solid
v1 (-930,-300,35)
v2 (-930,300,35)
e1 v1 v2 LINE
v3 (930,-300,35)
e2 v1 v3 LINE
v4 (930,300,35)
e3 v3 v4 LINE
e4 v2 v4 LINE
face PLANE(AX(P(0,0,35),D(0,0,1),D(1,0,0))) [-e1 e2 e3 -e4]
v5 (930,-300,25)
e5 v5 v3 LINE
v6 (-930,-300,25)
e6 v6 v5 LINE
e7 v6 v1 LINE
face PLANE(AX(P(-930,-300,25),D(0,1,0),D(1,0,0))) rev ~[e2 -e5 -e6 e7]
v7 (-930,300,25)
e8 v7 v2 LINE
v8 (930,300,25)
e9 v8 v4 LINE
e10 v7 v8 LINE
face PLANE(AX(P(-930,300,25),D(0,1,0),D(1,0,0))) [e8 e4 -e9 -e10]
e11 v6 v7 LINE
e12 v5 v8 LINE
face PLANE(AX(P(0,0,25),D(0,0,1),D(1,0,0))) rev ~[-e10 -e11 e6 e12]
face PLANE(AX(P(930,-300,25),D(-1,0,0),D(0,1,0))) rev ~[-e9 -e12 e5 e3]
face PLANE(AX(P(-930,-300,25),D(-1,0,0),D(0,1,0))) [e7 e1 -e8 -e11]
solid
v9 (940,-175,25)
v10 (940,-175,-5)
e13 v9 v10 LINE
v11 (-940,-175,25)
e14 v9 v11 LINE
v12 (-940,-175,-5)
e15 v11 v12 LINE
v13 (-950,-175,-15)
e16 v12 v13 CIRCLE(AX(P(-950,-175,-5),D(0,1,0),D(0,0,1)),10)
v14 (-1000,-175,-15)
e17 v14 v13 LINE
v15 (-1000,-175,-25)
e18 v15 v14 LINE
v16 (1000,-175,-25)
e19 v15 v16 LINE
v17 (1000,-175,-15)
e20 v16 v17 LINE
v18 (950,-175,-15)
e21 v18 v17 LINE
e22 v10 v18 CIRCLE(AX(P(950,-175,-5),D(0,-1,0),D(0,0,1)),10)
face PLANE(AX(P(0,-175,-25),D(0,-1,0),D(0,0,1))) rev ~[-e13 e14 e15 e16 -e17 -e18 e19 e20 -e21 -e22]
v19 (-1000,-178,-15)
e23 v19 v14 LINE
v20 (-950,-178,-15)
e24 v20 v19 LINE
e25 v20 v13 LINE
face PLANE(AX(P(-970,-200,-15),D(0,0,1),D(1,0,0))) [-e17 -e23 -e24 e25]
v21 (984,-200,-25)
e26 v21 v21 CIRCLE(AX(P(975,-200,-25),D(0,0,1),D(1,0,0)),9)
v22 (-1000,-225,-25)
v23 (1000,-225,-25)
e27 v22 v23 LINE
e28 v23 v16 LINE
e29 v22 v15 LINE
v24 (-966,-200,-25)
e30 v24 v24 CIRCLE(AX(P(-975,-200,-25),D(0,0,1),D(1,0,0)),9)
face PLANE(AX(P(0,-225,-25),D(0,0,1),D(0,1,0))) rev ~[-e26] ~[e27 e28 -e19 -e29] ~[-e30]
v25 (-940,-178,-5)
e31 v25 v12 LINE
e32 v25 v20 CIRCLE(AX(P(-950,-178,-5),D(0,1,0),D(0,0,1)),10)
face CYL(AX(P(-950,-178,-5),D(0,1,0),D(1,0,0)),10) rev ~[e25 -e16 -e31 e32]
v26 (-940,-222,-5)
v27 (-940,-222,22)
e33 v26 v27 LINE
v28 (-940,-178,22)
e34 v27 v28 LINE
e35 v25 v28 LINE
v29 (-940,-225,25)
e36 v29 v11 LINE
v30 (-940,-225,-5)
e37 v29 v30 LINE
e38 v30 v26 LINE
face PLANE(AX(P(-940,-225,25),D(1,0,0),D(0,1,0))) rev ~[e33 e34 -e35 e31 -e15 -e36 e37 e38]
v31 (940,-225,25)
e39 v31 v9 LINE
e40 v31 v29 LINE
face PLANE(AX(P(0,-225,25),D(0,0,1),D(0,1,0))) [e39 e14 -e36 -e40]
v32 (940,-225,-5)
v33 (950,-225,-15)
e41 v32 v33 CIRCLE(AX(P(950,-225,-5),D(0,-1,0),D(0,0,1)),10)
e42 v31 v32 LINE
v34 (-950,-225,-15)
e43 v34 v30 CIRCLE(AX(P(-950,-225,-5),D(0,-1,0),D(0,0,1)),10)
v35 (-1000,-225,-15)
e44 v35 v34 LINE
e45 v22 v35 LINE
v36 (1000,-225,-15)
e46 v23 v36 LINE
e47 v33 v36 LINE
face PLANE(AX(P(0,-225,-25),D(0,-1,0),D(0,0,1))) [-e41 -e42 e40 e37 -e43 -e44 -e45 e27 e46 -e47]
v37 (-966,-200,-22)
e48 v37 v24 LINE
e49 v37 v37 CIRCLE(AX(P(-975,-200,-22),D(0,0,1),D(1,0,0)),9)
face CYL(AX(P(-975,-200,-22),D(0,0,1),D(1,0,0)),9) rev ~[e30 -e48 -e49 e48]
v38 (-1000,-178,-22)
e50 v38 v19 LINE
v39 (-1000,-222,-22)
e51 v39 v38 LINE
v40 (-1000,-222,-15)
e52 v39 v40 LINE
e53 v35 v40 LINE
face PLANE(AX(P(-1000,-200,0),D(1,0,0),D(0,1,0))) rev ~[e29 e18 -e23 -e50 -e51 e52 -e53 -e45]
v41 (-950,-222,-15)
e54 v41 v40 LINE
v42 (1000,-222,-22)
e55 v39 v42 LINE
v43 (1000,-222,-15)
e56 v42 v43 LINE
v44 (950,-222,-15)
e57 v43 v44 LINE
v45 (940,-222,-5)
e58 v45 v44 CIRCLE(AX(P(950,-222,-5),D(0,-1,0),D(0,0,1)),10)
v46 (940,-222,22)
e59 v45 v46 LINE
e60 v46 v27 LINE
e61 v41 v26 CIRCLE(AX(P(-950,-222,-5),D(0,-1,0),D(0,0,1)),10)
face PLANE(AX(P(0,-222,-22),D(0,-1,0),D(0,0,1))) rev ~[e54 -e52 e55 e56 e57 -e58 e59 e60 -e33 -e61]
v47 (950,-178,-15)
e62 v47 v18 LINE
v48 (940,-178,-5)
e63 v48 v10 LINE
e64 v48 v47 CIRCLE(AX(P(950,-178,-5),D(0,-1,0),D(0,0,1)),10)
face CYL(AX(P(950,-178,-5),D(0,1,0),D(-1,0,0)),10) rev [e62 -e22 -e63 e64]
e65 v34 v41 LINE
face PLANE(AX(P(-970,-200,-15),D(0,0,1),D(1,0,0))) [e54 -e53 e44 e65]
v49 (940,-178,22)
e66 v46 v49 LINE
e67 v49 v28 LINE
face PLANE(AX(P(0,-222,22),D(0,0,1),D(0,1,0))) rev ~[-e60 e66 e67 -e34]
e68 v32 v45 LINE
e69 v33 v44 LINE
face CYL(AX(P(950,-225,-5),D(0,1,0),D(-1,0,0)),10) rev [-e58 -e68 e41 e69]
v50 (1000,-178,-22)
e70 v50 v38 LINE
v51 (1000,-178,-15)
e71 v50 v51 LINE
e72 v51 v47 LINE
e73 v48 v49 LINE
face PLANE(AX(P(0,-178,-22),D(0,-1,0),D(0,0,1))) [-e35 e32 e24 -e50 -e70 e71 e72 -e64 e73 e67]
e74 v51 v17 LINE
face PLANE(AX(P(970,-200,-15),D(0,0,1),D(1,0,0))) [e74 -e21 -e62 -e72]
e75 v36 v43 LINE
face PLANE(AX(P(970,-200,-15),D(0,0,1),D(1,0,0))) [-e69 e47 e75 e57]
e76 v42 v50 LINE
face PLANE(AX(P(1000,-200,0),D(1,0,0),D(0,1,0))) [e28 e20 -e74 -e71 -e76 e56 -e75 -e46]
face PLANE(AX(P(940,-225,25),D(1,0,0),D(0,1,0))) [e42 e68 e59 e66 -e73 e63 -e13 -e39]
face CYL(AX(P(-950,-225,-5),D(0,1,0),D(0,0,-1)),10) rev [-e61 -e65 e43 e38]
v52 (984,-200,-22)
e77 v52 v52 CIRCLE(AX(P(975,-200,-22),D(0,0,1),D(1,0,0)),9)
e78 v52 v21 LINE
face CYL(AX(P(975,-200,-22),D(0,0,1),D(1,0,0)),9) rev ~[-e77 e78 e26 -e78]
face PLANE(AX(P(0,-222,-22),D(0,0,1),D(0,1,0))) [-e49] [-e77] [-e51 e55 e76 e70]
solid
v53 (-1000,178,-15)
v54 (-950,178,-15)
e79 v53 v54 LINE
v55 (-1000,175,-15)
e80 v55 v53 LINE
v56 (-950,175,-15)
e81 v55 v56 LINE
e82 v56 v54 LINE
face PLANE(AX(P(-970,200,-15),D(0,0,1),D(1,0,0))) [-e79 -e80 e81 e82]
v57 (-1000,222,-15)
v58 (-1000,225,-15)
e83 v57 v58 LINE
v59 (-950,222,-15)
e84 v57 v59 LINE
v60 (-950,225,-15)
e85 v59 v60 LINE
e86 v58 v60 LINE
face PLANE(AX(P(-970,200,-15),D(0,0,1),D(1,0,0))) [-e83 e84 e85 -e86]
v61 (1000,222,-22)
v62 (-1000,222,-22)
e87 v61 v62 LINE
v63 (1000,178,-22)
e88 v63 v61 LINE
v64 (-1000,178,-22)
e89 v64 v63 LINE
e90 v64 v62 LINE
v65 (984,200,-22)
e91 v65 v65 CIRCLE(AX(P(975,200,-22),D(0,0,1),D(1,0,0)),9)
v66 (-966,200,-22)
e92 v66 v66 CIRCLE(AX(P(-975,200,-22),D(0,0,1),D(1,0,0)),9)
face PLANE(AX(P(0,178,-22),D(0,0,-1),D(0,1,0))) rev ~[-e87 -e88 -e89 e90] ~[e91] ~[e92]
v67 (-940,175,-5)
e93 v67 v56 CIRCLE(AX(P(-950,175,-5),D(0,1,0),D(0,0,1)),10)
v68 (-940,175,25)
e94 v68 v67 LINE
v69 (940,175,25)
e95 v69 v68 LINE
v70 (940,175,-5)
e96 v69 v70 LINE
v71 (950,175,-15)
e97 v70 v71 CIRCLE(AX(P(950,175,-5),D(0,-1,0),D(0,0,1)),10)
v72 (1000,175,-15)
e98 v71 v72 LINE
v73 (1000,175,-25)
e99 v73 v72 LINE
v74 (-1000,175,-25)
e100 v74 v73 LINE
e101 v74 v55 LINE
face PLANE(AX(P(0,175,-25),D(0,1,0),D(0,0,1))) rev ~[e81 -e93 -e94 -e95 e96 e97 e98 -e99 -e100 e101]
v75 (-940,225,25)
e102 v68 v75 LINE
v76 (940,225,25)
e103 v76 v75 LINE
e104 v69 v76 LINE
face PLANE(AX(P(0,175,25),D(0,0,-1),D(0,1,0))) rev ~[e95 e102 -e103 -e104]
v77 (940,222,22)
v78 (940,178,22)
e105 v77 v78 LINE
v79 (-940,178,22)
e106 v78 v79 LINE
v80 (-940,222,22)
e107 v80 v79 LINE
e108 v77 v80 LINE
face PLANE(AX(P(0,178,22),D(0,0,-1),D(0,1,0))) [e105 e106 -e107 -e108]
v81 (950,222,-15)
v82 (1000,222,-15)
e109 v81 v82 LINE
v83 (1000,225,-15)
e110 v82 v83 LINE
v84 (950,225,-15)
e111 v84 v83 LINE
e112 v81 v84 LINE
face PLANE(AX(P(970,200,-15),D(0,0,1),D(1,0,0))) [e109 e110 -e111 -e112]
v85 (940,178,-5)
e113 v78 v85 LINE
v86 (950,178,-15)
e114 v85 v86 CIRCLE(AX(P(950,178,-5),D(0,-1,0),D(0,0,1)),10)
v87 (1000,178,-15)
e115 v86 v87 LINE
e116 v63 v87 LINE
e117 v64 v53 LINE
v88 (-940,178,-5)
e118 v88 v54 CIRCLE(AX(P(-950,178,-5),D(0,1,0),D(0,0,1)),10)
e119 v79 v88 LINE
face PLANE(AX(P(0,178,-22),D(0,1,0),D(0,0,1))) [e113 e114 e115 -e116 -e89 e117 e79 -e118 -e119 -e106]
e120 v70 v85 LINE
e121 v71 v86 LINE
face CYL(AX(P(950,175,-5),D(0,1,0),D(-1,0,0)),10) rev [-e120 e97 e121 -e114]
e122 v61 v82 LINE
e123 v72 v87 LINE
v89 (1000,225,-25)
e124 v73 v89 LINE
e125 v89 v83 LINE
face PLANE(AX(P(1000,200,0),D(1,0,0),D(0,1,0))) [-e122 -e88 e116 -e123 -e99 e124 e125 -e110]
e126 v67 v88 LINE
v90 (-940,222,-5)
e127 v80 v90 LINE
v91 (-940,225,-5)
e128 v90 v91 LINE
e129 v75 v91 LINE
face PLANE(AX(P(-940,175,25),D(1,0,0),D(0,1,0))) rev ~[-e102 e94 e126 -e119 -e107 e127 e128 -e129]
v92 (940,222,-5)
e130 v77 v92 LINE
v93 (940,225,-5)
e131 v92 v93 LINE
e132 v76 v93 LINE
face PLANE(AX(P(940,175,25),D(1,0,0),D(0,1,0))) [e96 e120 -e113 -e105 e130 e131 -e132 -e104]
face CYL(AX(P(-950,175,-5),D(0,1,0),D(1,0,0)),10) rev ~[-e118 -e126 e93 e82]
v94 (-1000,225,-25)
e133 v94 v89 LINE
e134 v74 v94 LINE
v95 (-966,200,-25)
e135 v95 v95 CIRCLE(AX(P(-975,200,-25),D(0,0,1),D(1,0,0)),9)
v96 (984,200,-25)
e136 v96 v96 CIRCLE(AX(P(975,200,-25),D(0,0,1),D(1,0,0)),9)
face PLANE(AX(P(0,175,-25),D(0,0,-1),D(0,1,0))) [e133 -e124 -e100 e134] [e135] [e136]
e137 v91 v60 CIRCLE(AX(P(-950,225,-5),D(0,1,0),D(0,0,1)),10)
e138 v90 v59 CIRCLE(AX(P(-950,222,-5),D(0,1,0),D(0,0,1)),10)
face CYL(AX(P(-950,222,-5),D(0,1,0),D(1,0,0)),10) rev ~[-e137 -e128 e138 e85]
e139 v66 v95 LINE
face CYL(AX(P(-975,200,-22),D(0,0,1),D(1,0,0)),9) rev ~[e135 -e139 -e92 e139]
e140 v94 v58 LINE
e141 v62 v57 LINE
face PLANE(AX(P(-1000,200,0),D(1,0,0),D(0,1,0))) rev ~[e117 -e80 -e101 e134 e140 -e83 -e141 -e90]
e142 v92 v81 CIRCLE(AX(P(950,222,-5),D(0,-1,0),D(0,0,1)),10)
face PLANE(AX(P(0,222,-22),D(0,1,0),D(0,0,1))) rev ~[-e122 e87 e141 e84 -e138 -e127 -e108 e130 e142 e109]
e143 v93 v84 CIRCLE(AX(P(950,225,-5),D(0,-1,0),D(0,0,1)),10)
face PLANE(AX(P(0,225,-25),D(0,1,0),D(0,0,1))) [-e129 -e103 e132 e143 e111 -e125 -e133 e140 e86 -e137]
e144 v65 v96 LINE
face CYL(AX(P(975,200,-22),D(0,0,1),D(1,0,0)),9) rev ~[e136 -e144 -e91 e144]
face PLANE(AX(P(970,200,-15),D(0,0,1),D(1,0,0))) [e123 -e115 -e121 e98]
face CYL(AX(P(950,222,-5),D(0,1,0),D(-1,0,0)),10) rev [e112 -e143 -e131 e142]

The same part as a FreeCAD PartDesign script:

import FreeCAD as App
import Part
import Sketcher


def edges_at(feature, points):
    """Names of the edges that pass closest to the given points."""
    edges = feature.Shape.Edges
    near = lambda p: min(range(len(edges)), key=lambda i: edges[i].distToShape(Part.Vertex(*p))[0])
    return sorted({f"Edge{near(p) + 1}" for p in points})


def add_polygon(sketch, points):
    """Adds a closed chain of lines whose ends are joined by coincident constraints."""
    first, n = sketch.GeometryCount, len(points)
    for a, b in zip(points, points[1:] + points[:1]):
        sketch.addGeometry(Part.LineSegment(App.Vector(*a, 0), App.Vector(*b, 0)), False)
    for i in range(n):
        sketch.addConstraint(Sketcher.Constraint("Coincident", first + i, 2, first + (i + 1) % n, 1))

doc = App.newDocument("Part")
body = doc.addObject("PartDesign::Body", "Body")
body.AllowCompound = True

# Sketch on YZ plane
sketch1 = doc.addObject("Sketcher::SketchObject", "Sketch")
body.addObject(sketch1)
sketch1.AttachmentSupport = (doc.YZ_Plane, [""])
sketch1.MapMode = "FlatFace"
add_polygon(sketch1, [(-225, 25), (-225, -25), (-175, -25), (-175, 25)])  # lines 0-3
add_polygon(sketch1, [(-178, -22), (-222, -22), (-222, 22), (-178, 22)])  # lines 4-7
add_polygon(sketch1, [(175, 25), (175, -25), (225, -25), (225, 25)])  # lines 8-11
add_polygon(sketch1, [(222, -22), (178, -22), (178, 22), (222, 22)])  # lines 12-15
sketch1.addConstraint([
    Sketcher.Constraint("Vertical", 0),
    Sketcher.Constraint("Horizontal", 1),
    Sketcher.Constraint("Vertical", 2),
    Sketcher.Constraint("Horizontal", 3),
    Sketcher.Constraint("Horizontal", 4),
    Sketcher.Constraint("Vertical", 5),
    Sketcher.Constraint("Horizontal", 6),
    Sketcher.Constraint("Vertical", 7),
    Sketcher.Constraint("Vertical", 8),
    Sketcher.Constraint("Horizontal", 9),
    Sketcher.Constraint("Vertical", 10),
    Sketcher.Constraint("Horizontal", 11),
    Sketcher.Constraint("Horizontal", 12),
    Sketcher.Constraint("Vertical", 13),
    Sketcher.Constraint("Horizontal", 14),
    Sketcher.Constraint("Vertical", 15),
    Sketcher.Constraint("Symmetric", 2, 2, 8, 2, -1, 1),
    Sketcher.Constraint("Symmetric", 0, 2, 10, 2, -1, 1),
    Sketcher.Constraint("Symmetric", 6, 2, 12, 2, -1, 1),
    Sketcher.Constraint("Symmetric", 4, 2, 14, 2, -1, 1),
    Sketcher.Constraint("Horizontal", 1, 2, 8, 2),
    Sketcher.Constraint("Horizontal", 7, 2, 12, 2),
    Sketcher.Constraint("Equal", 11, 0),
    Sketcher.Constraint("Equal", 14, 5),
    Sketcher.Constraint("DistanceX", 1, 1, 1, 2, 50.0),
    Sketcher.Constraint("DistanceX", 4, 2, 4, 1, 44.0),
    Sketcher.Constraint("DistanceX", 0, 2, -1, 1, 225.0),
    Sketcher.Constraint("DistanceX", 4, 2, -1, 1, 222.0),
])
pad1 = doc.addObject("PartDesign::Pad", "Pad")
body.addObject(pad1)
pad1.Profile = sketch1
pad1.Length = 2000
pad1.Midplane = True

# Sketch on XY plane
sketch2 = doc.addObject("Sketcher::SketchObject", "Sketch001")
body.addObject(sketch2)
sketch2.AttachmentSupport = (doc.XY_Plane, [""])
sketch2.MapMode = "FlatFace"
sketch2.AttachmentOffset = App.Placement(App.Vector(0, 0, 25), App.Rotation())
add_polygon(sketch2, [(-1000, 225), (-1000, 175), (-940, 175), (-940, 225)])  # lines 0-3
add_polygon(sketch2, [(-1000, -175), (-1000, -225), (-940, -225), (-940, -175)])  # lines 4-7
add_polygon(sketch2, [(940, 225), (940, 175), (1000, 175), (1000, 225)])  # lines 8-11
add_polygon(sketch2, [(940, -175), (940, -225), (1000, -225), (1000, -175)])  # lines 12-15
sketch2.addConstraint([
    Sketcher.Constraint("Vertical", 0),
    Sketcher.Constraint("Horizontal", 1),
    Sketcher.Constraint("Vertical", 2),
    Sketcher.Constraint("Horizontal", 3),
    Sketcher.Constraint("Vertical", 4),
    Sketcher.Constraint("Horizontal", 5),
    Sketcher.Constraint("Vertical", 6),
    Sketcher.Constraint("Horizontal", 7),
    Sketcher.Constraint("Vertical", 8),
    Sketcher.Constraint("Horizontal", 9),
    Sketcher.Constraint("Vertical", 10),
    Sketcher.Constraint("Horizontal", 11),
    Sketcher.Constraint("Vertical", 12),
    Sketcher.Constraint("Horizontal", 13),
    Sketcher.Constraint("Vertical", 14),
    Sketcher.Constraint("Horizontal", 15),
    Sketcher.Constraint("Symmetric", 6, 2, 8, 2, -1, 1),
    Sketcher.Constraint("Symmetric", 4, 2, 10, 2, -1, 1),
    Sketcher.Constraint("Symmetric", 2, 2, 12, 2, -1, 1),
    Sketcher.Constraint("Symmetric", 0, 2, 14, 2, -1, 1),
    Sketcher.Constraint("Symmetric", 1, 2, 8, 2, -2),
    Sketcher.Constraint("Symmetric", 3, 2, 10, 2, -2),
    Sketcher.Constraint("DistanceX", 1, 1, 1, 2, 60.0),
    Sketcher.Constraint("DistanceY", 0, 2, 0, 1, 50.0),
    Sketcher.Constraint("DistanceX", 0, 2, -1, 1, 1000.0),
    Sketcher.Constraint("DistanceY", -1, 1, 0, 2, 175.0),
])
pocket1 = doc.addObject("PartDesign::Pocket", "Pocket")
body.addObject(pocket1)
pocket1.Profile = sketch2
pocket1.Length = 40
doc.recompute()

fillet = doc.addObject("PartDesign::Fillet", "Fillet")
body.addObject(fillet)
fillet.Base = (pocket1, edges_at(pocket1, [
    (-940, 176.5, -15),
    (-940, 223.5, -15),
    (-940, -223.5, -15),
    (-940, -176.5, -15),
]))
fillet.Radius = 10
doc.recompute()

fillet2 = doc.addObject("PartDesign::Fillet", "Fillet001")
body.addObject(fillet2)
fillet2.Base = (fillet, edges_at(fillet, [
    (940, -223.5, -15),
    (940, -176.5, -15),
    (940, 176.5, -15),
    (940, 223.5, -15),
]))
fillet2.Radius = 10

# Sketch on XY plane
sketch3 = doc.addObject("Sketcher::SketchObject", "Sketch002")
body.addObject(sketch3)
sketch3.AttachmentSupport = (doc.XY_Plane, [""])
sketch3.MapMode = "FlatFace"
sketch3.AttachmentOffset = App.Placement(App.Vector(0, 0, -22), App.Rotation())
sketch3.addGeometry([
    Part.Circle(App.Vector(-975, 200, 0), App.Vector(0, 0, 1), 9),  # 0
    Part.Circle(App.Vector(-975, -200, 0), App.Vector(0, 0, 1), 9),  # 1
    Part.Circle(App.Vector(975, 200, 0), App.Vector(0, 0, 1), 9),  # 2
    Part.Circle(App.Vector(975, -200, 0), App.Vector(0, 0, 1), 9),  # 3
    Part.Circle(App.Vector(2925, 200, 0), App.Vector(0, 0, 1), 9),  # 4
    Part.Circle(App.Vector(2925, -200, 0), App.Vector(0, 0, 1), 9),  # 5
], False)
sketch3.addConstraint([
    Sketcher.Constraint("Equal", 0, 1),
    Sketcher.Constraint("Equal", 1, 2),
    Sketcher.Constraint("Equal", 2, 3),
    Sketcher.Constraint("Equal", 3, 4),
    Sketcher.Constraint("Equal", 4, 5),
    Sketcher.Constraint("Symmetric", 1, 3, 2, 3, -1, 1),
    Sketcher.Constraint("Symmetric", 0, 3, 3, 3, -1, 1),
    Sketcher.Constraint("Symmetric", 0, 3, 2, 3, -2),
    Sketcher.Constraint("Symmetric", 4, 3, 5, 3, -1),
    Sketcher.Constraint("Horizontal", 2, 3, 4, 3),
    Sketcher.Constraint("Diameter", 0, 18.0),
    Sketcher.Constraint("DistanceX", 0, 3, -1, 1, 975.0),
    Sketcher.Constraint("DistanceY", -1, 1, 0, 3, 200.0),
    Sketcher.Constraint("DistanceX", -1, 1, 4, 3, 2925.0),
])
pocket2 = doc.addObject("PartDesign::Pocket", "Pocket001")
body.addObject(pocket2)
pocket2.Profile = sketch3
pocket2.Length = 5
body2 = doc.addObject("PartDesign::Body", "Body001")

# Sketch on XY plane
sketch4 = doc.addObject("Sketcher::SketchObject", "Sketch003")
body2.addObject(sketch4)
sketch4.AttachmentSupport = (doc.getObject("XY_Plane001"), [""])
sketch4.MapMode = "FlatFace"
sketch4.AttachmentOffset = App.Placement(App.Vector(0, 0, 25), App.Rotation())
add_polygon(sketch4, [(-930, 300), (-930, -300), (930, -300), (930, 300)])  # lines 0-3
sketch4.addConstraint([
    Sketcher.Constraint("Vertical", 0),
    Sketcher.Constraint("Horizontal", 1),
    Sketcher.Constraint("Vertical", 2),
    Sketcher.Constraint("Horizontal", 3),
    Sketcher.Constraint("Symmetric", 0, 2, 2, 2, -1, 1),
    Sketcher.Constraint("DistanceX", 1, 1, 1, 2, 1860.0),
    Sketcher.Constraint("DistanceY", 0, 2, 0, 1, 600.0),
])
pad2 = doc.addObject("PartDesign::Pad", "Pad001")
body2.addObject(pad2)
pad2.Profile = sketch4
pad2.Length = 10

doc.recompute()
